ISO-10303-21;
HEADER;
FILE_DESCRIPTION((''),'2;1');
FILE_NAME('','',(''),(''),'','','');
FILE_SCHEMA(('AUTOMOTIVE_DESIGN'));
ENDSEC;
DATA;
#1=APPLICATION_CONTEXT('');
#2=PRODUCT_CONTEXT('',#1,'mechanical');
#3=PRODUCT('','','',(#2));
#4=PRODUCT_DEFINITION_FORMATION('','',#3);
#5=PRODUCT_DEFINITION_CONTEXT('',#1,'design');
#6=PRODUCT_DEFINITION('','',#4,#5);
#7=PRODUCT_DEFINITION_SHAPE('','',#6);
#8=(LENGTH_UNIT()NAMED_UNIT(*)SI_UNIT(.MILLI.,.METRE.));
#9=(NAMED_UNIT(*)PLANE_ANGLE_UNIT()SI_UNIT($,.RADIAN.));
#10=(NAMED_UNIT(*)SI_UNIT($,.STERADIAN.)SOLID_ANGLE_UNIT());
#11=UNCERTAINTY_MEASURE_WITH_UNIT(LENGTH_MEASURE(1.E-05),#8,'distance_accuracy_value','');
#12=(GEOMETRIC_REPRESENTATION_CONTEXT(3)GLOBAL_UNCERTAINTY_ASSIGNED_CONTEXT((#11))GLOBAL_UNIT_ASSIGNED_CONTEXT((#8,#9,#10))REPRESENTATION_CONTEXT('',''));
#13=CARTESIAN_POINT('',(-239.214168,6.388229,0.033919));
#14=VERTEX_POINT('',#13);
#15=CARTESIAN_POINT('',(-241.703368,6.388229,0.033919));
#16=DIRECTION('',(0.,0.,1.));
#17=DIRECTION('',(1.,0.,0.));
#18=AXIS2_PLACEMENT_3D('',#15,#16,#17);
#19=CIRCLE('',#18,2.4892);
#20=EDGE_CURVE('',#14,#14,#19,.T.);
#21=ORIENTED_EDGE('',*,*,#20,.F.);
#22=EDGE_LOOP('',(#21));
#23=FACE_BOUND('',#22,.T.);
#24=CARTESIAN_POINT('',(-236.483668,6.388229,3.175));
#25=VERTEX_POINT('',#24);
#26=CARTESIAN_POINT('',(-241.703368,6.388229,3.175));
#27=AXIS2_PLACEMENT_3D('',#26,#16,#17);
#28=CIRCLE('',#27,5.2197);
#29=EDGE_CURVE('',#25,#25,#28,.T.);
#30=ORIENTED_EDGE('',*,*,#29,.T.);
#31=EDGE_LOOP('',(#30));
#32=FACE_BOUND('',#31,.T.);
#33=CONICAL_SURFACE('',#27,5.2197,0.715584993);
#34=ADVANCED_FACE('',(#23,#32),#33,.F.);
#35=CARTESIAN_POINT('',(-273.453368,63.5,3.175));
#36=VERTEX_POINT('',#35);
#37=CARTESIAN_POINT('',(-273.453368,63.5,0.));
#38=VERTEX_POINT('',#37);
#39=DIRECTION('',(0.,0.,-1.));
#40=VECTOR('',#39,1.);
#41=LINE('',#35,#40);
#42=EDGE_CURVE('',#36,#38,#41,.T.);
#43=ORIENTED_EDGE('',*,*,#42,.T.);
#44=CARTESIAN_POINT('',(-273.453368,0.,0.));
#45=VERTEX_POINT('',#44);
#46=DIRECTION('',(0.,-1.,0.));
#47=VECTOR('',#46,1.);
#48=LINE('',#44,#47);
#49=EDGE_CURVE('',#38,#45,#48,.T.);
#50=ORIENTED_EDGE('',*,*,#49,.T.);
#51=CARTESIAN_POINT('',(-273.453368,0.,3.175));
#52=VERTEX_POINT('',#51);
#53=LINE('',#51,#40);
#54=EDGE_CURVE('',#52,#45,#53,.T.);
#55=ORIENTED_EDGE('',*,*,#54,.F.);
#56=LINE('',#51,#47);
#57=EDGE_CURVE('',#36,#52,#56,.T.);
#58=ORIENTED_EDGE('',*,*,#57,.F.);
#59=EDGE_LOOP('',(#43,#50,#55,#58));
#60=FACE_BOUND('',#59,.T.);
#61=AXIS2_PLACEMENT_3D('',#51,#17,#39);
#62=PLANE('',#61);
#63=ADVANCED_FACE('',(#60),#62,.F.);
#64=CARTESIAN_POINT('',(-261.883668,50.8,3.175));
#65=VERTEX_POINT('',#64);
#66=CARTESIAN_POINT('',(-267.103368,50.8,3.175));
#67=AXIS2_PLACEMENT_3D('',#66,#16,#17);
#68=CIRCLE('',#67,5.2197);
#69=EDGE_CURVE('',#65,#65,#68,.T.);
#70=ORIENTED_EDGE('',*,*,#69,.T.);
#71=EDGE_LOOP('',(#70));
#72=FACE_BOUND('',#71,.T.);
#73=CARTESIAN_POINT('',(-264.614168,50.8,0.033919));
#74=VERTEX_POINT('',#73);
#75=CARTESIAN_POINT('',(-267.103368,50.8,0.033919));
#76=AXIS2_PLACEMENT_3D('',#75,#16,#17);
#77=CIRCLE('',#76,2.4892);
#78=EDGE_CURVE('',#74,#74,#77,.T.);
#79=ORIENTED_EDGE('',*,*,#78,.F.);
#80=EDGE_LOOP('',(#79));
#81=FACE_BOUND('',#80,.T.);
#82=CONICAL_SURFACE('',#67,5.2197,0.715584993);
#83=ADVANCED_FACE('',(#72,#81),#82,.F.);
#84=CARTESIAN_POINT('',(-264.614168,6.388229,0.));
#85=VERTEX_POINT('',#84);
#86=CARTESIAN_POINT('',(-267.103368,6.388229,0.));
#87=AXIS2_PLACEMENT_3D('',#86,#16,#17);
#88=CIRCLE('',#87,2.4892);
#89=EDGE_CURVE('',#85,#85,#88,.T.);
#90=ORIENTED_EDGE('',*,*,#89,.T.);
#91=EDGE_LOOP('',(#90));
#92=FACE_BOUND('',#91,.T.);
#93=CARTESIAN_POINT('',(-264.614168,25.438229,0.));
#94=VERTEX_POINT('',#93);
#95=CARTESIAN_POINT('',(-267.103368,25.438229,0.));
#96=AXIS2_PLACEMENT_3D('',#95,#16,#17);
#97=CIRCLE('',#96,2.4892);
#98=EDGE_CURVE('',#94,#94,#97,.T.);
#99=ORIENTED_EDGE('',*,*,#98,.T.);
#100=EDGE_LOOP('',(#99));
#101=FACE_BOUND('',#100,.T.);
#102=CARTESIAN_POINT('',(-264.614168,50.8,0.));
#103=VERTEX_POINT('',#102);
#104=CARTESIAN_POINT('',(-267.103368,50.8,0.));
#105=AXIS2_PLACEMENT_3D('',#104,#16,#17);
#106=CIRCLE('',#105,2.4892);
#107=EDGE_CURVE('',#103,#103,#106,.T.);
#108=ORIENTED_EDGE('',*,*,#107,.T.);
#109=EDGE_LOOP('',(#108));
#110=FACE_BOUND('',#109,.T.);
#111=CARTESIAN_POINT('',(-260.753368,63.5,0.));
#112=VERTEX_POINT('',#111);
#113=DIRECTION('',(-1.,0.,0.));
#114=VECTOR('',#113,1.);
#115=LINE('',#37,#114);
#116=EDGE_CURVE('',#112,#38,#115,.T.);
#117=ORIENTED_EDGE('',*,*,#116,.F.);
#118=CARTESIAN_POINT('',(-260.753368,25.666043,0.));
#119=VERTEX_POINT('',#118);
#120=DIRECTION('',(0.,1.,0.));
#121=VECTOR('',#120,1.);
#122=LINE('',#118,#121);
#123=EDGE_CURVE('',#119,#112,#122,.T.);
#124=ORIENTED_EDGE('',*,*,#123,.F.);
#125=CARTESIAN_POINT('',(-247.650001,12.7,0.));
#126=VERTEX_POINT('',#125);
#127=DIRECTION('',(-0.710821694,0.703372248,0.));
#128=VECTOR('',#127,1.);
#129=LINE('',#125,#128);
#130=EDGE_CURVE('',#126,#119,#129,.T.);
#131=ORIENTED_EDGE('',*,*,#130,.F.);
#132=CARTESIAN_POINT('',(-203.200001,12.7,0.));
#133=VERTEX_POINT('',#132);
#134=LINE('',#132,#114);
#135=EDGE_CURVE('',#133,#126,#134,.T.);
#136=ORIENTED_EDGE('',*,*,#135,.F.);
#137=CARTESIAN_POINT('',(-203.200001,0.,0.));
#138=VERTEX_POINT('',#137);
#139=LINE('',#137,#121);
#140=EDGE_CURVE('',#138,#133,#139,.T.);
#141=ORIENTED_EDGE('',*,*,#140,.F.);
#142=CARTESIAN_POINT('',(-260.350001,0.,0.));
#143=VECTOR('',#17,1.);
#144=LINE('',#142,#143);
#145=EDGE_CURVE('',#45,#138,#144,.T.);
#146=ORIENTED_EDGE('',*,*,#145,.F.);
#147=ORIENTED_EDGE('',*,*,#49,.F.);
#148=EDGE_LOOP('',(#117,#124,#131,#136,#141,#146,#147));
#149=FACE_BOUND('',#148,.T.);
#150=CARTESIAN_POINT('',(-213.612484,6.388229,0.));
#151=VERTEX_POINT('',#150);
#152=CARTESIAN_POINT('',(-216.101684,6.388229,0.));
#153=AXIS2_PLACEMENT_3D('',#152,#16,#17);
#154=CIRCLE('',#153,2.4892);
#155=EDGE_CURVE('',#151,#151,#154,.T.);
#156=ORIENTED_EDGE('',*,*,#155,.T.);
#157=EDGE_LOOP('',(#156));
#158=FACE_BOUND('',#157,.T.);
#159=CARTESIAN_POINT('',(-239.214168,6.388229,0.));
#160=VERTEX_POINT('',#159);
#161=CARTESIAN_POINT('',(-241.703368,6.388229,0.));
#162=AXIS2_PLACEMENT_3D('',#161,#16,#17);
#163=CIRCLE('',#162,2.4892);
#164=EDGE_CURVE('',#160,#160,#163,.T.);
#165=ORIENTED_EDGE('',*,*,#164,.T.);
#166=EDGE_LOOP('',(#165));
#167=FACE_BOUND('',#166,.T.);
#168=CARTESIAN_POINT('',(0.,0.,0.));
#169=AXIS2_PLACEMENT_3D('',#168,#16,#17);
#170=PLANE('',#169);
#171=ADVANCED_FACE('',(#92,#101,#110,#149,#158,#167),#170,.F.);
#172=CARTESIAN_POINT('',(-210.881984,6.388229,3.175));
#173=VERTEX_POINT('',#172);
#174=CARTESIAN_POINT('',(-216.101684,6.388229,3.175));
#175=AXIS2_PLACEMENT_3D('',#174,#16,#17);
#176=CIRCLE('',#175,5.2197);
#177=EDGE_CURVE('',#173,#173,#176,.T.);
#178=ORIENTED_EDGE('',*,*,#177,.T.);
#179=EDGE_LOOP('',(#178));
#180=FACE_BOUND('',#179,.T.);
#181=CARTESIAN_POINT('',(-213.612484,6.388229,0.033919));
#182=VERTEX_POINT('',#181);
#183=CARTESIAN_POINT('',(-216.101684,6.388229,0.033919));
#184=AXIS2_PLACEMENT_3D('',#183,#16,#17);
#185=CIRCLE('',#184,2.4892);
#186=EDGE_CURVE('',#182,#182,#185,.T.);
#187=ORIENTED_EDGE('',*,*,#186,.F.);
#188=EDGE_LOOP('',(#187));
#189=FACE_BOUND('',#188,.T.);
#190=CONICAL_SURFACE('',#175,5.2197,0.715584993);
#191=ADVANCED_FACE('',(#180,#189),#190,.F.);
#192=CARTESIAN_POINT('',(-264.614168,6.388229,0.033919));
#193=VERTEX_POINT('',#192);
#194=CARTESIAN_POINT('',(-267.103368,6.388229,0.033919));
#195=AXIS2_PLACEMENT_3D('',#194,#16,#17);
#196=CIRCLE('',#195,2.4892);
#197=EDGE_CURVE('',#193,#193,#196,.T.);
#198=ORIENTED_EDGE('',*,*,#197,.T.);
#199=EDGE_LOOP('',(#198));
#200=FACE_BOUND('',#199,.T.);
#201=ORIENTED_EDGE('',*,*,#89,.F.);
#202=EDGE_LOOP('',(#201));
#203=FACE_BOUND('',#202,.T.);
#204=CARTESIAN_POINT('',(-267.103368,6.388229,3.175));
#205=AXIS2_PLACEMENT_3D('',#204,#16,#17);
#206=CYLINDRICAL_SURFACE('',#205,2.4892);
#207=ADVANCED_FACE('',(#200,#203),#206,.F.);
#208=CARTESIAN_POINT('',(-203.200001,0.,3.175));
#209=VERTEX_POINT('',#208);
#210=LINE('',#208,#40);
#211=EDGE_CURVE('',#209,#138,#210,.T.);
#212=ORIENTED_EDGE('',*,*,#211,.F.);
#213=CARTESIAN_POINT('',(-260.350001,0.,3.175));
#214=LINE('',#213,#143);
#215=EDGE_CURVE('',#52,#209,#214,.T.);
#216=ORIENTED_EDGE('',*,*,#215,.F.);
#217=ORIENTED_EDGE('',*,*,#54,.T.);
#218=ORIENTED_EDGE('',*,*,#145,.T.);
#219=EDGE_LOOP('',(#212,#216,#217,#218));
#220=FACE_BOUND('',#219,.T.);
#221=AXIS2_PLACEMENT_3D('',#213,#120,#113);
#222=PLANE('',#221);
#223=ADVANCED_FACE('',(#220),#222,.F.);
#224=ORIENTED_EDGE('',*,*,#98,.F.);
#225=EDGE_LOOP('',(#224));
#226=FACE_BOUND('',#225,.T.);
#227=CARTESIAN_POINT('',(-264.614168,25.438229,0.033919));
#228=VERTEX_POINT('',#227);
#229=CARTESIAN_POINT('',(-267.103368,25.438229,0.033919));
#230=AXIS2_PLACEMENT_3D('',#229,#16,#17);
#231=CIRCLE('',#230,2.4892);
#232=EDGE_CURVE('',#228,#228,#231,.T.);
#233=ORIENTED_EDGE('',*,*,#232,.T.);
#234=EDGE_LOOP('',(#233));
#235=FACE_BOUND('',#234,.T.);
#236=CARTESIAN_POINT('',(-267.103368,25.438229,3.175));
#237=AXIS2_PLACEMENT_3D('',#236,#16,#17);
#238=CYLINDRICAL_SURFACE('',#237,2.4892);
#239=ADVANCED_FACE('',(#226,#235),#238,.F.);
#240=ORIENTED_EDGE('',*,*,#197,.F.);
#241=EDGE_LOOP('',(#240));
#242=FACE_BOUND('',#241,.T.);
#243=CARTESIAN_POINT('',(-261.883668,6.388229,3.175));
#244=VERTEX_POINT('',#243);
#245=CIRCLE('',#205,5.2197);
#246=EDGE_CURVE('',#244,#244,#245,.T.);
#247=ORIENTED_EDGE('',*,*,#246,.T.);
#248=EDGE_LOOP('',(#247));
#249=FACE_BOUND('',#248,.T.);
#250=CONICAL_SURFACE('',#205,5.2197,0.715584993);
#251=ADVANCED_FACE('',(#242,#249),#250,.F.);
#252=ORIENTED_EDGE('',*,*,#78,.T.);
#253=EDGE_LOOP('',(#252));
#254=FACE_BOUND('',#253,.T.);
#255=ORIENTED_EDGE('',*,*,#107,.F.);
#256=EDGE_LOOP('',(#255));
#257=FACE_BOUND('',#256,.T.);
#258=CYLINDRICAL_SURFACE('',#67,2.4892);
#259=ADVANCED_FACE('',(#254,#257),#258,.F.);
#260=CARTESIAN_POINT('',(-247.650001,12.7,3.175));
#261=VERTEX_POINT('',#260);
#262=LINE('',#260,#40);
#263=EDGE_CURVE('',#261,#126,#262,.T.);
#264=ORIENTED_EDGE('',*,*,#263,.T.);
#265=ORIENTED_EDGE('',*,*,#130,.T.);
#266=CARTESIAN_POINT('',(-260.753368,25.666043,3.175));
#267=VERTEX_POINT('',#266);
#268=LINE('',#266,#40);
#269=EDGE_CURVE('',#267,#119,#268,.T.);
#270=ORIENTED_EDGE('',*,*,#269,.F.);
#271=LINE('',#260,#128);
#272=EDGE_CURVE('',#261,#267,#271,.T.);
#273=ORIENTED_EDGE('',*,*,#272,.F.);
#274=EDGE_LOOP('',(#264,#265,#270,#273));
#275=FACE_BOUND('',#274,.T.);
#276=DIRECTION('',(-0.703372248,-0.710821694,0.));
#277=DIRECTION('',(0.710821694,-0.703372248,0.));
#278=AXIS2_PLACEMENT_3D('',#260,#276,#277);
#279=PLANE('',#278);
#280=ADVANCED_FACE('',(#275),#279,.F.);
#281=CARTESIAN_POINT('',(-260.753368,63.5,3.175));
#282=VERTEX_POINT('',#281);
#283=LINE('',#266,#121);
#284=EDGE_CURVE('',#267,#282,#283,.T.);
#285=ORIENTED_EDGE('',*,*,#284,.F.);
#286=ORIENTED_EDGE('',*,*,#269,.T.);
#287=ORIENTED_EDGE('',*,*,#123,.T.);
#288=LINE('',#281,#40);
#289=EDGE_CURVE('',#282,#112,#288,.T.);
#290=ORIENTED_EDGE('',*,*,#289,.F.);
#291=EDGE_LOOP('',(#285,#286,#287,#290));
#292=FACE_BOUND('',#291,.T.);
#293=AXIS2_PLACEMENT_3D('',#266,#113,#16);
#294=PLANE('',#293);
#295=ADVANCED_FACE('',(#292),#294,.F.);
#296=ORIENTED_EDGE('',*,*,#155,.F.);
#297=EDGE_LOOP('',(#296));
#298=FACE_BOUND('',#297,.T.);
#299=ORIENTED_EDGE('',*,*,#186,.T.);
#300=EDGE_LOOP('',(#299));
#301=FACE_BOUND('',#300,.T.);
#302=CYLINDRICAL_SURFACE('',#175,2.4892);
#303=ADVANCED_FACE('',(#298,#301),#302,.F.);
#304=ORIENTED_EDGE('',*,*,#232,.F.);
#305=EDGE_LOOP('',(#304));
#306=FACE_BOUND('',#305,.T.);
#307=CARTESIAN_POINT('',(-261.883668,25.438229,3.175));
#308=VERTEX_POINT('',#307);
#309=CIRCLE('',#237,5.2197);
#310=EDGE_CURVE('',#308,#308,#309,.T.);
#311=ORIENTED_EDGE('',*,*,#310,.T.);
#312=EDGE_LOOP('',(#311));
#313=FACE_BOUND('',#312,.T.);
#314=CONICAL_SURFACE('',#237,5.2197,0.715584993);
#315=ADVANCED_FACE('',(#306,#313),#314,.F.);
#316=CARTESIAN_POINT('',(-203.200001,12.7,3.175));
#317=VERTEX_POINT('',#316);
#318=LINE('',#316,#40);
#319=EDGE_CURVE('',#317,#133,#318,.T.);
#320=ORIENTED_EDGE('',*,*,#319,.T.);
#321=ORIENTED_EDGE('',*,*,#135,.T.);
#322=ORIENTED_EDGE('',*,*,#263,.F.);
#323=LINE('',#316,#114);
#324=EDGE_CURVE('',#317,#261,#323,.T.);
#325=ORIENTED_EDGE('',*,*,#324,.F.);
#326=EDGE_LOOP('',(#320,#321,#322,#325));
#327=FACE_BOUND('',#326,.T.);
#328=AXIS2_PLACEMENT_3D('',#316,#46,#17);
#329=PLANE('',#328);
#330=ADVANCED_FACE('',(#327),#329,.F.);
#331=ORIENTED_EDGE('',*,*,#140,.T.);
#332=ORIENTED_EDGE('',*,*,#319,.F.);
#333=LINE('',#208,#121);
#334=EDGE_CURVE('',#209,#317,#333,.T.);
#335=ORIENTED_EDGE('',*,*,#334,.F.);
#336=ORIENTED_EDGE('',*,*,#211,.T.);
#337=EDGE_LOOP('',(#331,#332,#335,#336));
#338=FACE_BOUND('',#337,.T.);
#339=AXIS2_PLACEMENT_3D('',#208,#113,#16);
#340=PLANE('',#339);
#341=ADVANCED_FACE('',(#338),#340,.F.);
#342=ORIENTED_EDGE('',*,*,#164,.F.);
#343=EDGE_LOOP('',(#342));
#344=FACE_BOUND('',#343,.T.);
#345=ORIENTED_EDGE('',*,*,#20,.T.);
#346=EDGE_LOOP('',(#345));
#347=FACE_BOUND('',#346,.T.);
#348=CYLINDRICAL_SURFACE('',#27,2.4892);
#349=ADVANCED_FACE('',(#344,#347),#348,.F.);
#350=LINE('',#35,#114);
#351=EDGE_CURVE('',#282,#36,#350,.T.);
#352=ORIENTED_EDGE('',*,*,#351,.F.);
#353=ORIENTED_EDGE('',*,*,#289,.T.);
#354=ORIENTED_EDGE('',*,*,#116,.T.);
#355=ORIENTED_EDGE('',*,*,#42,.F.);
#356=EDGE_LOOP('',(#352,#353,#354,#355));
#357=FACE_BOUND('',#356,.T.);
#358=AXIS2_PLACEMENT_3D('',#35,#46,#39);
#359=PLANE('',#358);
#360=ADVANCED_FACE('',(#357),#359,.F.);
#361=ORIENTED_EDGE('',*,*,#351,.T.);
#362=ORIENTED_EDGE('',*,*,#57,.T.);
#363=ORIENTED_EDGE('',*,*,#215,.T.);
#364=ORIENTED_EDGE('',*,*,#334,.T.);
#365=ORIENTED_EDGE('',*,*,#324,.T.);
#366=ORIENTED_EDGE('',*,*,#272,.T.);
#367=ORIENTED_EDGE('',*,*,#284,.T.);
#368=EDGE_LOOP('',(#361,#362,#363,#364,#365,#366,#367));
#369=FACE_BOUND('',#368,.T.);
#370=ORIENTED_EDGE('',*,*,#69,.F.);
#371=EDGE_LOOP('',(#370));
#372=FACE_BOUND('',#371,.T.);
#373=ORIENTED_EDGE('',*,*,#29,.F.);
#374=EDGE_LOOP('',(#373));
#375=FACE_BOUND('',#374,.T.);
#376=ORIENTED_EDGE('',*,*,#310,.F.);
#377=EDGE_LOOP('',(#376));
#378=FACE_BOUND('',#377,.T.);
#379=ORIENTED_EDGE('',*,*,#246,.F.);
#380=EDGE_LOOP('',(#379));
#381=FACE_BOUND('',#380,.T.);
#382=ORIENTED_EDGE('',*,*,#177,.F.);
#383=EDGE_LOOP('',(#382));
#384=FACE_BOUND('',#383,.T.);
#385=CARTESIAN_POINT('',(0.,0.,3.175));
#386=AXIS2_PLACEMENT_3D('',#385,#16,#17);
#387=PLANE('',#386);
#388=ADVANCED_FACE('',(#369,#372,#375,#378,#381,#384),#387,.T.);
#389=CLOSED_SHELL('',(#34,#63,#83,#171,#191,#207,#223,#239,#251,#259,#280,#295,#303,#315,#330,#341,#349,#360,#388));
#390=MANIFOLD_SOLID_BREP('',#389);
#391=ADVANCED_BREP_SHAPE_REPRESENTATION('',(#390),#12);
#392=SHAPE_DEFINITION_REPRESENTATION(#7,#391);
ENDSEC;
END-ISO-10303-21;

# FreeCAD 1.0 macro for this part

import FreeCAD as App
import Part
import Sketcher

V = App.Vector
Q = App.Units.Quantity


def add_polygon(sketch, points):
    """Adds a closed chain of lines whose ends are joined by coincident constraints."""
    first, n = sketch.GeometryCount, len(points)
    for a, b in zip(points, points[1:] + points[:1]):
        sketch.addGeometry(Part.LineSegment(App.Vector(*a, 0), App.Vector(*b, 0)), False)
    for i in range(n):
        sketch.addConstraint(Sketcher.Constraint("Coincident", first + i, 2, first + (i + 1) % n, 1))

doc = App.newDocument("Part")
body = doc.addObject("PartDesign::Body", "Body")

# Sketch on XY plane
sketch1 = body.newObject("Sketcher::SketchObject", "Sketch")
sketch1.AttachmentSupport = (doc.getObject("XY_Plane"), [""])
sketch1.MapMode = "FlatFace"
add_polygon(sketch1, [(-273, 0), (-203, 0), (-203, 13), (-248, 13), (-261, 26), (-261, 64), (-273, 64)])  # lines 0-6
sketch1.addConstraint([
    Sketcher.Constraint("Horizontal", 0),
    Sketcher.Constraint("Vertical", 1),
    Sketcher.Constraint("Horizontal", 2),
    Sketcher.Constraint("Vertical", 4),
    Sketcher.Constraint("Horizontal", 5),
    Sketcher.Constraint("Vertical", 6),
    Sketcher.Constraint("PointOnObject", 0, 2, -1),
    Sketcher.Constraint("Equal", 5, 1),
    Sketcher.Constraint("DistanceX", 5, 2, 5, 1, Q("0.5 in")),
    Sketcher.Constraint("DistanceY", 6, 2, 6, 1, Q("2.5 in")),
    Sketcher.Constraint("DistanceX", 0, 2, -1, 1, Q("8 in")),
    Sketcher.Constraint("DistanceX", 2, 2, 2, 1, Q("1.75 in")),
    Sketcher.Constraint("DistanceX", 0, 1, 0, 2, Q("70.253367 mm")),
    Sketcher.Constraint("DistanceY", 4, 1, 4, 2, Q("37.833957 mm")),
])
pad1 = body.newObject("PartDesign::Pad", "Pad")
pad1.Profile = sketch1
pad1.Length = Q("0.125 in")

# Sketch on YZ plane
sketch2 = body.newObject("Sketcher::SketchObject", "Sketch001")
sketch2.AttachmentSupport = (doc.getObject("YZ_Plane"), [""])
sketch2.MapMode = "FlatFace"
sketch2.AttachmentOffset = App.Placement(V(0, 0, -267.103368), App.Rotation())
add_polygon(sketch2, [(6.388, 0), (6.388, 3.175), (1.169, 3.175), (3.899, 0.034), (3.899, 0)])  # lines 0-4
sketch2.addGeometry(Part.LineSegment(V(6.388, 3.175, 0), V(6.388, 0, 0)), True)  # axis
sketch2.addConstraint([
    Sketcher.Constraint("Vertical", 0),
    Sketcher.Constraint("Horizontal", 1),
    Sketcher.Constraint("Vertical", 3),
    Sketcher.Constraint("Horizontal", 4),
    Sketcher.Constraint("Vertical", 5),
    Sketcher.Constraint("Coincident", 5, 1, 0, 2),
    Sketcher.Constraint("PointOnObject", 3, 2, -1),
    Sketcher.Constraint("PointOnObject", 5, 2, -1),
    Sketcher.Constraint("Angle", 2, Q("-49 deg")),
    Sketcher.Constraint("DistanceX", 4, 1, 4, 2, Q("0.098 in")),
    Sketcher.Constraint("DistanceY", 0, 1, 0, 2, Q("0.125 in")),
    Sketcher.Constraint("DistanceX", 1, 2, 1, 1, Q("0.2055 in")),
    Sketcher.Constraint("DistanceX", -1, 1, 0, 2, Q("6.388229 mm")),
])
groove = body.newObject("PartDesign::Groove", "Groove")
groove.Profile = sketch2
groove.ReferenceAxis = (sketch2, ["Axis0"])
groove.Angle = 360
doc.recompute()

linearpattern = body.newObject("PartDesign::LinearPattern", "LinearPattern")
linearpattern.Originals = [groove]
linearpattern.Direction = (doc.getObject("Y_Axis"), [""])
linearpattern.Mode = "offset"
linearpattern.Offset = Q("0.75 in")
linearpattern.Occurrences = 2
body.Tip = linearpattern
doc.recompute()

linearpattern2 = body.newObject("PartDesign::LinearPattern", "LinearPattern001")
linearpattern2.Originals = [groove]
linearpattern2.Direction = (doc.getObject("Y_Axis"), [""])
linearpattern2.Mode = "offset"
linearpattern2.Offset = 44.411771
linearpattern2.Occurrences = 2
body.Tip = linearpattern2
doc.recompute()

linearpattern3 = body.newObject("PartDesign::LinearPattern", "LinearPattern002")
linearpattern3.Originals = [groove]
linearpattern3.Direction = (doc.getObject("X_Axis"), [""])
linearpattern3.Mode = "offset"
linearpattern3.Offset = Q("1 in")
linearpattern3.Occurrences = 2
body.Tip = linearpattern3
doc.recompute()

linearpattern4 = body.newObject("PartDesign::LinearPattern", "LinearPattern003")
linearpattern4.Originals = [groove]
linearpattern4.Direction = (doc.getObject("X_Axis"), [""])
linearpattern4.Mode = "offset"
linearpattern4.Offset = 51.001684
linearpattern4.Occurrences = 2
body.Tip = linearpattern4

doc.recompute()
